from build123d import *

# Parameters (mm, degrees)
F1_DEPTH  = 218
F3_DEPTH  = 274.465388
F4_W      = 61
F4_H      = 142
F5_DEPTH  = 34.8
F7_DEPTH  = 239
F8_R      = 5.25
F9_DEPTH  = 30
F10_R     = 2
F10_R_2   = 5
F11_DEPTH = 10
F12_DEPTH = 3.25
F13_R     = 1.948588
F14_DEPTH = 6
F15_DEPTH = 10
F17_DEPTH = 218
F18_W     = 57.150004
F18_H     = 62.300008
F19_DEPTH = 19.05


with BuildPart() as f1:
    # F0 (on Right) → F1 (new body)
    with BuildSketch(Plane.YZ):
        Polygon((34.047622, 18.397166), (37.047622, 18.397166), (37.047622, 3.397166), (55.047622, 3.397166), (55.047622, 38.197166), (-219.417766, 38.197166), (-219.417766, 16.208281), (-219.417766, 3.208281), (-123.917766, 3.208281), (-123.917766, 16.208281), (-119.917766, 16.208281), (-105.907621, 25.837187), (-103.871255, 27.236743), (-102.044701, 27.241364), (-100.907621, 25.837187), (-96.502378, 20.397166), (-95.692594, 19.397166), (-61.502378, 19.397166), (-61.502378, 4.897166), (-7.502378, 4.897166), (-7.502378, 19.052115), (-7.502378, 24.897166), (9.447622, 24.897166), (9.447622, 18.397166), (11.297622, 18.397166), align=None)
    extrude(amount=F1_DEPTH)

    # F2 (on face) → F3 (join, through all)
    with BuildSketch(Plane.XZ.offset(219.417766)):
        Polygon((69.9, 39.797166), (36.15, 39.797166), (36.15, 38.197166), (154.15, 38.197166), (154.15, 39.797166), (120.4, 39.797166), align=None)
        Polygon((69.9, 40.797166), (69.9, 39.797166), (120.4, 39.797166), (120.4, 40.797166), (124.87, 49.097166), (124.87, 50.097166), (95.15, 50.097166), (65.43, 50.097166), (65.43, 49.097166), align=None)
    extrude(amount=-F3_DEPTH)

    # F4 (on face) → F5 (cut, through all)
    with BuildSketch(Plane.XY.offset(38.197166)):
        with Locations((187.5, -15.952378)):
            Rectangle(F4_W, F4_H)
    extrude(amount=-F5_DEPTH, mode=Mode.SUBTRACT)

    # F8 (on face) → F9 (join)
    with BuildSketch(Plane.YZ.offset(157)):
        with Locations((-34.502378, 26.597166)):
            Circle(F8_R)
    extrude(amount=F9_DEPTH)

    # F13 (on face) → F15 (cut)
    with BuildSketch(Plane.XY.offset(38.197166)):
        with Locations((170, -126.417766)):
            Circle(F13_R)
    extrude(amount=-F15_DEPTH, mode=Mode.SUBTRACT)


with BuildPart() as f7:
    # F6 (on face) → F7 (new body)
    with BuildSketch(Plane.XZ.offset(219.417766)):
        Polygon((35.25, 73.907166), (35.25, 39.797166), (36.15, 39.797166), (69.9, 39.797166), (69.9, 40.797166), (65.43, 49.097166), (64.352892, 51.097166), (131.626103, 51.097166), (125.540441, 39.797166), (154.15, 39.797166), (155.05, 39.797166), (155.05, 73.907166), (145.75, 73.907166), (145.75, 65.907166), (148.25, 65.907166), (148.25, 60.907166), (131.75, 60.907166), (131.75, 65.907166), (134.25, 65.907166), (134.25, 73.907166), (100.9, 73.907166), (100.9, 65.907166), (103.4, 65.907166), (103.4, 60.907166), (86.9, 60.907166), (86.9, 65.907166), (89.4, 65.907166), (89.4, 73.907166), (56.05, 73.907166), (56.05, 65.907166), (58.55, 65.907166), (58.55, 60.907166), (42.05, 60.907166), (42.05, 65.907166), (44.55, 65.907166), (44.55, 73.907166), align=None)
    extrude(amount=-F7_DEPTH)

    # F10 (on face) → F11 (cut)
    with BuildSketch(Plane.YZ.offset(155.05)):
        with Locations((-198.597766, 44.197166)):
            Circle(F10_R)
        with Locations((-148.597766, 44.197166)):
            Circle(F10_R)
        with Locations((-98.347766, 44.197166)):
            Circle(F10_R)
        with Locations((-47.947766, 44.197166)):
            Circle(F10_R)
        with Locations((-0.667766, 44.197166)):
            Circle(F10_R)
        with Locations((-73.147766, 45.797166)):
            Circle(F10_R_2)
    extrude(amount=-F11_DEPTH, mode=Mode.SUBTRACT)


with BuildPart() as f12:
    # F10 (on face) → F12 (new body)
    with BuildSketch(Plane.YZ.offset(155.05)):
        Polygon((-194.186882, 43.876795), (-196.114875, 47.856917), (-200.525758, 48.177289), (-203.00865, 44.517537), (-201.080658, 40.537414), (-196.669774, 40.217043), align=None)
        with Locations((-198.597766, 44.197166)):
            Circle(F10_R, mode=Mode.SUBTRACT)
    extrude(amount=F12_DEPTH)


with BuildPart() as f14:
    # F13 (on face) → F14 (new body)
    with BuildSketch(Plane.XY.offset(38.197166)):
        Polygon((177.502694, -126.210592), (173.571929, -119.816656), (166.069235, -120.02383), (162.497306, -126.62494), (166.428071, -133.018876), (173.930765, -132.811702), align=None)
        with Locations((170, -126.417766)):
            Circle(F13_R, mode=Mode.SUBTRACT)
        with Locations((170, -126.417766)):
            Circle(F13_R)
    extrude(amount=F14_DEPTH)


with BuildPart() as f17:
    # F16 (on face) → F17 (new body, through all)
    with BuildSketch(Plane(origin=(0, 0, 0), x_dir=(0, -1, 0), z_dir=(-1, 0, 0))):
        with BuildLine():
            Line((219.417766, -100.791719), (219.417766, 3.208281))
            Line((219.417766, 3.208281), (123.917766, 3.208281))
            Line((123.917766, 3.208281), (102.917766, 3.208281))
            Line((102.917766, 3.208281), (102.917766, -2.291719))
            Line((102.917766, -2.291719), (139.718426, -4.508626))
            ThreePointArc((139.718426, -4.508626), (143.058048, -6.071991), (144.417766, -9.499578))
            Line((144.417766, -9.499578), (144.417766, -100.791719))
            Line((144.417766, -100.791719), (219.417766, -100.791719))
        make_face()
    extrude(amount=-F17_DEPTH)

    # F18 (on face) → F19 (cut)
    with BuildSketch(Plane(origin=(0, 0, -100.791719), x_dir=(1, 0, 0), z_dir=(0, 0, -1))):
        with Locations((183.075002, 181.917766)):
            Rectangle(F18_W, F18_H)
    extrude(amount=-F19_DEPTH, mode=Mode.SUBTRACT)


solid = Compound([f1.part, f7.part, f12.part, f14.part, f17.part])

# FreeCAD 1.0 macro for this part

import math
import FreeCAD as App
import Part
import Sketcher
from FreeCAD import Vector
Q = App.Units.Quantity

doc = App.newDocument("Part")
body = doc.addObject("PartDesign::Body", "Body")

sketch1 = body.newObject("Sketcher::SketchObject", "Sketch")
sketch1.AttachmentSupport = (doc.getObject("YZ_Plane"), [""])
sketch1.MapMode = "FlatFace"
sketch1.addGeometry([
    Part.LineSegment(Vector(37, 18.4, 0), Vector(37, 3.4, 0)),
    Part.LineSegment(Vector(37, 3.4, 0), Vector(55, 3.4, 0)),
    Part.LineSegment(Vector(55, 3.4, 0), Vector(55, 38.2, 0)),
    Part.LineSegment(Vector(55, 38.2, 0), Vector(-219.4, 38.2, 0)),
    Part.LineSegment(Vector(-219.4, 38.2, 0), Vector(-219.4, 3.2, 0)),
    Part.LineSegment(Vector(-219.4, 3.2, 0), Vector(-123.9, 3.2, 0)),
    Part.LineSegment(Vector(-123.9, 3.2, 0), Vector(-123.9, 16.2, 0)),
    Part.LineSegment(Vector(-123.9, 16.2, 0), Vector(-119.9, 16.2, 0)),
    Part.LineSegment(Vector(-119.9, 16.2, 0), Vector(-105.9, 25.8, 0)),
    Part.LineSegment(Vector(-105.9, 25.8, 0), Vector(-103.9, 27.2, 0)),
    Part.LineSegment(Vector(-103.9, 27.2, 0), Vector(-102, 27.2, 0)),
    Part.LineSegment(Vector(-102, 27.2, 0), Vector(-100.9, 25.8, 0)),
    Part.LineSegment(Vector(-100.9, 25.8, 0), Vector(-96.5, 20.4, 0)),
    Part.LineSegment(Vector(-96.5, 20.4, 0), Vector(-95.7, 19.4, 0)),
    Part.LineSegment(Vector(-95.7, 19.4, 0), Vector(-61.5, 19.4, 0)),
    Part.LineSegment(Vector(-61.5, 19.4, 0), Vector(-61.5, 4.9, 0)),
    Part.LineSegment(Vector(-61.5, 4.9, 0), Vector(-7.5, 4.9, 0)),
    Part.LineSegment(Vector(-7.5, 4.9, 0), Vector(-7.5, 24.9, 0)),
    Part.LineSegment(Vector(-7.5, 24.9, 0), Vector(9.4, 24.9, 0)),
    Part.LineSegment(Vector(9.4, 24.9, 0), Vector(9.4, 18.4, 0)),
    Part.LineSegment(Vector(9.4, 18.4, 0), Vector(37, 18.4, 0)),
], False)
sketch1.addConstraint([
    Sketcher.Constraint("Coincident", 0, 2, 1, 1),
    Sketcher.Constraint("Coincident", 1, 2, 2, 1),
    Sketcher.Constraint("Coincident", 2, 2, 3, 1),
    Sketcher.Constraint("Coincident", 3, 2, 4, 1),
    Sketcher.Constraint("Coincident", 4, 2, 5, 1),
    Sketcher.Constraint("Coincident", 5, 2, 6, 1),
    Sketcher.Constraint("Coincident", 6, 2, 7, 1),
    Sketcher.Constraint("Coincident", 7, 2, 8, 1),
    Sketcher.Constraint("Coincident", 8, 2, 9, 1),
    Sketcher.Constraint("Coincident", 9, 2, 10, 1),
    Sketcher.Constraint("Coincident", 10, 2, 11, 1),
    Sketcher.Constraint("Coincident", 11, 2, 12, 1),
    Sketcher.Constraint("Coincident", 12, 2, 13, 1),
    Sketcher.Constraint("Coincident", 13, 2, 14, 1),
    Sketcher.Constraint("Coincident", 14, 2, 15, 1),
    Sketcher.Constraint("Coincident", 15, 2, 16, 1),
    Sketcher.Constraint("Coincident", 16, 2, 17, 1),
    Sketcher.Constraint("Coincident", 17, 2, 18, 1),
    Sketcher.Constraint("Coincident", 18, 2, 19, 1),
    Sketcher.Constraint("Coincident", 19, 2, 20, 1),
    Sketcher.Constraint("Coincident", 20, 2, 0, 1),
    Sketcher.Constraint("Vertical", 0),
    Sketcher.Constraint("Horizontal", 1),
    Sketcher.Constraint("Vertical", 2),
    Sketcher.Constraint("Horizontal", 3),
    Sketcher.Constraint("Vertical", 4),
    Sketcher.Constraint("Horizontal", 5),
    Sketcher.Constraint("Vertical", 6),
    Sketcher.Constraint("Horizontal", 7),
    Sketcher.Constraint("Horizontal", 14),
    Sketcher.Constraint("Vertical", 15),
    Sketcher.Constraint("Horizontal", 16),
    Sketcher.Constraint("Vertical", 17),
    Sketcher.Constraint("Horizontal", 18),
    Sketcher.Constraint("Vertical", 19),
    Sketcher.Constraint("Horizontal", 20),
    Sketcher.Constraint("Parallel", 8, 9),
    Sketcher.Constraint("Parallel", 11, 12),
    Sketcher.Constraint("Parallel", 12, 13),
    Sketcher.Constraint("Horizontal", 8, 2, 11, 2),
    Sketcher.Constraint("DistanceX", 1, 1, 1, 2, 18.0),
    Sketcher.Constraint("DistanceX", 7, 1, 7, 2, 4.0),
    Sketcher.Constraint("DistanceX", 16, 1, 16, 2, 54.0),
    Sketcher.Constraint("DistanceY", 0, 2, 0, 1, 15.0),
    Sketcher.Constraint("DistanceY", 6, 1, 6, 2, 13.0),
    Sketcher.Constraint("DistanceY", 17, 1, 17, 2, 20.0),
    Sketcher.Constraint("Angle", 11, Q("-51.000003 deg")),
    Sketcher.Constraint("Distance", 8, 17.0),
    Sketcher.Constraint("Distance", 12, 7.0),
    Sketcher.Constraint("DistanceX", 5, 1, 5, 2, 95.5),
    Sketcher.Constraint("DistanceX", 20, 1, 20, 2, 27.6),
    Sketcher.Constraint("DistanceY", 2, 1, 2, 2, 34.8),
    Sketcher.Constraint("DistanceY", 15, 2, 15, 1, 14.5),
    Sketcher.Constraint("DistanceY", 19, 2, 19, 1, 6.5),
    Sketcher.Constraint("Angle", 8, Q("34.5 deg")),
    Sketcher.Constraint("DistanceX", 8, 2, 11, 2, 5.0),
    Sketcher.Constraint("DistanceY", 13, 2, 12, 2, 1.0),
    Sketcher.Constraint("DistanceX", 12, 2, 14, 2, 35.0),
    Sketcher.Constraint("DistanceX", 18, 1, 18, 2, 16.95),
    Sketcher.Constraint("DistanceX", 10, 2, -1, 1, 102.044701),
    Sketcher.Constraint("DistanceY", 12, 2, 10, 2, 6.844198),
    Sketcher.Constraint("Distance", 9, 2.47094),
    Sketcher.Constraint("DistanceY", -1, 1, 4, 2, 3.208281),
])
pad1 = body.newObject("PartDesign::Pad", "Pad")
pad1.Profile = sketch1
pad1.Length = 218

sketch2 = body.newObject("Sketcher::SketchObject", "Sketch001")
sketch2.AttachmentSupport = (doc.getObject("XZ_Plane"), [""])
sketch2.MapMode = "FlatFace"
sketch2.AttachmentOffset = App.Placement(Vector(0, 0, 219.417766), App.Rotation())
sketch2.addGeometry([
    Part.LineSegment(Vector(36.1, 39.8, 0), Vector(36.1, 38.2, 0)),
    Part.LineSegment(Vector(36.1, 38.2, 0), Vector(154.2, 38.2, 0)),
    Part.LineSegment(Vector(154.2, 38.2, 0), Vector(154.2, 39.8, 0)),
    Part.LineSegment(Vector(154.2, 39.8, 0), Vector(120.4, 39.8, 0)),
    Part.LineSegment(Vector(120.4, 39.8, 0), Vector(120.4, 40.8, 0)),
    Part.LineSegment(Vector(120.4, 40.8, 0), Vector(124.9, 49.1, 0)),
    Part.LineSegment(Vector(124.9, 49.1, 0), Vector(124.9, 50.1, 0)),
    Part.LineSegment(Vector(124.9, 50.1, 0), Vector(65.4, 50.1, 0)),
    Part.LineSegment(Vector(65.4, 50.1, 0), Vector(65.4, 49.1, 0)),
    Part.LineSegment(Vector(65.4, 49.1, 0), Vector(69.9, 40.8, 0)),
    Part.LineSegment(Vector(69.9, 40.8, 0), Vector(69.9, 39.8, 0)),
    Part.LineSegment(Vector(69.9, 39.8, 0), Vector(36.1, 39.8, 0)),
], False)
sketch2.addConstraint([
    Sketcher.Constraint("Coincident", 0, 2, 1, 1),
    Sketcher.Constraint("Coincident", 1, 2, 2, 1),
    Sketcher.Constraint("Coincident", 2, 2, 3, 1),
    Sketcher.Constraint("Coincident", 3, 2, 4, 1),
    Sketcher.Constraint("Coincident", 4, 2, 5, 1),
    Sketcher.Constraint("Coincident", 5, 2, 6, 1),
    Sketcher.Constraint("Coincident", 6, 2, 7, 1),
    Sketcher.Constraint("Coincident", 7, 2, 8, 1),
    Sketcher.Constraint("Coincident", 8, 2, 9, 1),
    Sketcher.Constraint("Coincident", 9, 2, 10, 1),
    Sketcher.Constraint("Coincident", 10, 2, 11, 1),
    Sketcher.Constraint("Coincident", 11, 2, 0, 1),
    Sketcher.Constraint("Vertical", 0),
    Sketcher.Constraint("Horizontal", 1),
    Sketcher.Constraint("Vertical", 2),
    Sketcher.Constraint("Horizontal", 3),
    Sketcher.Constraint("Vertical", 4),
    Sketcher.Constraint("Vertical", 6),
    Sketcher.Constraint("Horizontal", 7),
    Sketcher.Constraint("Vertical", 8),
    Sketcher.Constraint("Vertical", 10),
    Sketcher.Constraint("Horizontal", 11),
    Sketcher.Constraint("Horizontal", 5, 2, 8, 2),
    Sketcher.Constraint("Horizontal", 4, 2, 9, 2),
    Sketcher.Constraint("Horizontal", 3, 2, 10, 2),
    Sketcher.Constraint("Equal", 3, 11),
    Sketcher.Constraint("Equal", 4, 6),
    Sketcher.Constraint("Equal", 5, 9),
    Sketcher.Constraint("DistanceX", 1, 1, 1, 2, 118.0),
    Sketcher.Constraint("DistanceY", 4, 1, 4, 2, 1.0),
    Sketcher.Constraint("DistanceY", 0, 2, 0, 1, 1.6),
    Sketcher.Constraint("DistanceX", 3, 2, 3, 1, 33.75),
    Sketcher.Constraint("DistanceX", 7, 2, 7, 1, 59.44),
    Sketcher.Constraint("DistanceX", -1, 1, 3, 2, 120.4),
    Sketcher.Constraint("DistanceY", 4, 2, 5, 2, 8.3),
    Sketcher.Constraint("DistanceY", -1, 1, 0, 2, 38.197166),
])
pad2 = body.newObject("PartDesign::Pad", "Pad001")
pad2.Profile = sketch2
pad2.Length = 274.465388
pad2.Reversed = True

sketch3 = body.newObject("Sketcher::SketchObject", "Sketch002")
sketch3.AttachmentSupport = (doc.getObject("XY_Plane"), [""])
sketch3.MapMode = "FlatFace"
sketch3.AttachmentOffset = App.Placement(Vector(0, 0, 38.197166), App.Rotation())
sketch3.addGeometry([
    Part.LineSegment(Vector(157, 55, 0), Vector(157, -87, 0)),
    Part.LineSegment(Vector(157, -87, 0), Vector(218, -87, 0)),
    Part.LineSegment(Vector(218, -87, 0), Vector(218, 55, 0)),
    Part.LineSegment(Vector(218, 55, 0), Vector(157, 55, 0)),
], False)
sketch3.addConstraint([
    Sketcher.Constraint("Coincident", 0, 2, 1, 1),
    Sketcher.Constraint("Coincident", 1, 2, 2, 1),
    Sketcher.Constraint("Coincident", 2, 2, 3, 1),
    Sketcher.Constraint("Coincident", 3, 2, 0, 1),
    Sketcher.Constraint("Vertical", 0),
    Sketcher.Constraint("Horizontal", 1),
    Sketcher.Constraint("Vertical", 2),
    Sketcher.Constraint("Horizontal", 3),
    Sketcher.Constraint("DistanceX", 1, 1, 1, 2, 61.0),
    Sketcher.Constraint("DistanceY", 0, 2, 0, 1, 142.0),
    Sketcher.Constraint("DistanceX", -1, 1, 0, 2, 157.0),
    Sketcher.Constraint("DistanceY", -1, 1, 2, 2, 55.047622),
])
pocket1 = body.newObject("PartDesign::Pocket", "Pocket")
pocket1.Profile = sketch3
pocket1.Type = "ThroughAll"

sketch4 = body.newObject("Sketcher::SketchObject", "Sketch003")
sketch4.AttachmentSupport = (doc.getObject("YZ_Plane"), [""])
sketch4.MapMode = "FlatFace"
sketch4.AttachmentOffset = App.Placement(Vector(0, 0, 157), App.Rotation())
sketch4.addGeometry(Part.Circle(Vector(-35, 27, 0), Vector(0, 0, 1), 5), False)
sketch4.addConstraint([
    Sketcher.Constraint("Diameter", 0, 10.5),
    Sketcher.Constraint("DistanceX", 0, 3, -1, 1, 34.502378),
    Sketcher.Constraint("DistanceY", -1, 1, 0, 3, 26.597166),
])
pad3 = body.newObject("PartDesign::Pad", "Pad002")
pad3.Profile = sketch4
pad3.Length = 30

sketch5 = body.newObject("Sketcher::SketchObject", "Sketch004")
sketch5.AttachmentSupport = (doc.getObject("XY_Plane"), [""])
sketch5.MapMode = "FlatFace"
sketch5.AttachmentOffset = App.Placement(Vector(0, 0, 38.197166), App.Rotation())
sketch5.addGeometry(Part.Circle(Vector(170, -126.4, 0), Vector(0, 0, 1), 1.9), False)
sketch5.addConstraint([
    Sketcher.Constraint("DistanceX", -1, 1, 0, 3, 170.0),
    Sketcher.Constraint("Diameter", 0, 3.897176),
    Sketcher.Constraint("DistanceY", 0, 3, -1, 1, 126.417766),
])
pocket2 = body.newObject("PartDesign::Pocket", "Pocket001")
pocket2.Profile = sketch5
pocket2.Length = 10
body2 = doc.addObject("PartDesign::Body", "Body001")

sketch6 = body2.newObject("Sketcher::SketchObject", "Sketch005")
sketch6.AttachmentSupport = (doc.getObject("XZ_Plane001"), [""])
sketch6.MapMode = "FlatFace"
sketch6.AttachmentOffset = App.Placement(Vector(0, 0, 219.417766), App.Rotation())
sketch6.addGeometry([
    Part.LineSegment(Vector(35.2, 73.9, 0), Vector(35.2, 39.8, 0)),
    Part.LineSegment(Vector(35.2, 39.8, 0), Vector(69.9, 39.8, 0)),
    Part.LineSegment(Vector(69.9, 39.8, 0), Vector(69.9, 40.8, 0)),
    Part.LineSegment(Vector(69.9, 40.8, 0), Vector(65.4, 49.1, 0)),
    Part.LineSegment(Vector(65.4, 49.1, 0), Vector(64.4, 51.1, 0)),
    Part.LineSegment(Vector(64.4, 51.1, 0), Vector(131.6, 51.1, 0)),
    Part.LineSegment(Vector(131.6, 51.1, 0), Vector(125.5, 39.8, 0)),
    Part.LineSegment(Vector(125.5, 39.8, 0), Vector(155.1, 39.8, 0)),
    Part.LineSegment(Vector(155.1, 39.8, 0), Vector(155.1, 73.9, 0)),
    Part.LineSegment(Vector(155.1, 73.9, 0), Vector(145.8, 73.9, 0)),
    Part.LineSegment(Vector(145.8, 73.9, 0), Vector(145.8, 65.9, 0)),
    Part.LineSegment(Vector(145.8, 65.9, 0), Vector(148.2, 65.9, 0)),
    Part.LineSegment(Vector(148.2, 65.9, 0), Vector(148.2, 60.9, 0)),
    Part.LineSegment(Vector(148.2, 60.9, 0), Vector(131.8, 60.9, 0)),
    Part.LineSegment(Vector(131.8, 60.9, 0), Vector(131.8, 65.9, 0)),
    Part.LineSegment(Vector(131.8, 65.9, 0), Vector(134.2, 65.9, 0)),
    Part.LineSegment(Vector(134.2, 65.9, 0), Vector(134.2, 73.9, 0)),
    Part.LineSegment(Vector(134.2, 73.9, 0), Vector(100.9, 73.9, 0)),
    Part.LineSegment(Vector(100.9, 73.9, 0), Vector(100.9, 65.9, 0)),
    Part.LineSegment(Vector(100.9, 65.9, 0), Vector(103.4, 65.9, 0)),
    Part.LineSegment(Vector(103.4, 65.9, 0), Vector(103.4, 60.9, 0)),
    Part.LineSegment(Vector(103.4, 60.9, 0), Vector(86.9, 60.9, 0)),
    Part.LineSegment(Vector(86.9, 60.9, 0), Vector(86.9, 65.9, 0)),
    Part.LineSegment(Vector(86.9, 65.9, 0), Vector(89.4, 65.9, 0)),
    Part.LineSegment(Vector(89.4, 65.9, 0), Vector(89.4, 73.9, 0)),
    Part.LineSegment(Vector(89.4, 73.9, 0), Vector(56, 73.9, 0)),
    Part.LineSegment(Vector(56, 73.9, 0), Vector(56, 65.9, 0)),
    Part.LineSegment(Vector(56, 65.9, 0), Vector(58.5, 65.9, 0)),
    Part.LineSegment(Vector(58.5, 65.9, 0), Vector(58.5, 60.9, 0)),
    Part.LineSegment(Vector(58.5, 60.9, 0), Vector(42, 60.9, 0)),
    Part.LineSegment(Vector(42, 60.9, 0), Vector(42, 65.9, 0)),
    Part.LineSegment(Vector(42, 65.9, 0), Vector(44.5, 65.9, 0)),
    Part.LineSegment(Vector(44.5, 65.9, 0), Vector(44.5, 73.9, 0)),
    Part.LineSegment(Vector(44.5, 73.9, 0), Vector(35.2, 73.9, 0)),
], False)
sketch6.addConstraint([
    Sketcher.Constraint("Coincident", 0, 2, 1, 1),
    Sketcher.Constraint("Coincident", 1, 2, 2, 1),
    Sketcher.Constraint("Coincident", 2, 2, 3, 1),
    Sketcher.Constraint("Coincident", 3, 2, 4, 1),
    Sketcher.Constraint("Coincident", 4, 2, 5, 1),
    Sketcher.Constraint("Coincident", 5, 2, 6, 1),
    Sketcher.Constraint("Coincident", 6, 2, 7, 1),
    Sketcher.Constraint("Coincident", 7, 2, 8, 1),
    Sketcher.Constraint("Coincident", 8, 2, 9, 1),
    Sketcher.Constraint("Coincident", 9, 2, 10, 1),
    Sketcher.Constraint("Coincident", 10, 2, 11, 1),
    Sketcher.Constraint("Coincident", 11, 2, 12, 1),
    Sketcher.Constraint("Coincident", 12, 2, 13, 1),
    Sketcher.Constraint("Coincident", 13, 2, 14, 1),
    Sketcher.Constraint("Coincident", 14, 2, 15, 1),
    Sketcher.Constraint("Coincident", 15, 2, 16, 1),
    Sketcher.Constraint("Coincident", 16, 2, 17, 1),
    Sketcher.Constraint("Coincident", 17, 2, 18, 1),
    Sketcher.Constraint("Coincident", 18, 2, 19, 1),
    Sketcher.Constraint("Coincident", 19, 2, 20, 1),
    Sketcher.Constraint("Coincident", 20, 2, 21, 1),
    Sketcher.Constraint("Coincident", 21, 2, 22, 1),
    Sketcher.Constraint("Coincident", 22, 2, 23, 1),
    Sketcher.Constraint("Coincident", 23, 2, 24, 1),
    Sketcher.Constraint("Coincident", 24, 2, 25, 1),
    Sketcher.Constraint("Coincident", 25, 2, 26, 1),
    Sketcher.Constraint("Coincident", 26, 2, 27, 1),
    Sketcher.Constraint("Coincident", 27, 2, 28, 1),
    Sketcher.Constraint("Coincident", 28, 2, 29, 1),
    Sketcher.Constraint("Coincident", 29, 2, 30, 1),
    Sketcher.Constraint("Coincident", 30, 2, 31, 1),
    Sketcher.Constraint("Coincident", 31, 2, 32, 1),
    Sketcher.Constraint("Coincident", 32, 2, 33, 1),
    Sketcher.Constraint("Coincident", 33, 2, 0, 1),
    Sketcher.Constraint("Vertical", 0),
    Sketcher.Constraint("Horizontal", 1),
    Sketcher.Constraint("Vertical", 2),
    Sketcher.Constraint("Horizontal", 5),
    Sketcher.Constraint("Horizontal", 7),
    Sketcher.Constraint("Vertical", 8),
    Sketcher.Constraint("Horizontal", 9),
    Sketcher.Constraint("Vertical", 10),
    Sketcher.Constraint("Horizontal", 11),
    Sketcher.Constraint("Vertical", 12),
    Sketcher.Constraint("Horizontal", 13),
    Sketcher.Constraint("Vertical", 14),
    Sketcher.Constraint("Horizontal", 15),
    Sketcher.Constraint("Vertical", 16),
    Sketcher.Constraint("Horizontal", 17),
    Sketcher.Constraint("Vertical", 18),
    Sketcher.Constraint("Horizontal", 19),
    Sketcher.Constraint("Vertical", 20),
    Sketcher.Constraint("Horizontal", 21),
    Sketcher.Constraint("Vertical", 22),
    Sketcher.Constraint("Horizontal", 23),
    Sketcher.Constraint("Vertical", 24),
    Sketcher.Constraint("Horizontal", 25),
    Sketcher.Constraint("Vertical", 26),
    Sketcher.Constraint("Horizontal", 27),
    Sketcher.Constraint("Vertical", 28),
    Sketcher.Constraint("Horizontal", 29),
    Sketcher.Constraint("Vertical", 30),
    Sketcher.Constraint("Horizontal", 31),
    Sketcher.Constraint("Vertical", 32),
    Sketcher.Constraint("Horizontal", 33),
    Sketcher.Constraint("Parallel", 3, 4),
    Sketcher.Constraint("Horizontal", 1, 2, 6, 2),
    Sketcher.Constraint("Horizontal", 11, 2, 14, 2),
    Sketcher.Constraint("Horizontal", 9, 2, 16, 2),
    Sketcher.Constraint("Horizontal", 15, 2, 18, 2),
    Sketcher.Constraint("Horizontal", 13, 2, 20, 2),
    Sketcher.Constraint("Horizontal", 19, 2, 22, 2),
    Sketcher.Constraint("Horizontal", 17, 2, 24, 2),
    Sketcher.Constraint("Horizontal", 23, 2, 26, 2),
    Sketcher.Constraint("Horizontal", 21, 2, 28, 2),
    Sketcher.Constraint("Horizontal", 27, 2, 30, 2),
    Sketcher.Constraint("Horizontal", 25, 2, 32, 2),
    Sketcher.Constraint("Equal", 11, 15),
    Sketcher.Constraint("Equal", 15, 19),
    Sketcher.Constraint("Equal", 13, 21),
    Sketcher.Constraint("Equal", 19, 23),
    Sketcher.Constraint("Equal", 17, 25),
    Sketcher.Constraint("Equal", 23, 27),
    Sketcher.Constraint("Equal", 21, 29),
    Sketcher.Constraint("Equal", 27, 31),
    Sketcher.Constraint("Equal", 9, 33),
    Sketcher.Constraint("DistanceY", 2, 1, 2, 2, 1.0),
    Sketcher.Constraint("DistanceY", 10, 2, 10, 1, 8.0),
    Sketcher.Constraint("DistanceY", 12, 2, 12, 1, 5.0),
    Sketcher.Constraint("DistanceX", 9, 2, 9, 1, 9.3),
    Sketcher.Constraint("DistanceX", 11, 1, 11, 2, 2.5),
    Sketcher.Constraint("DistanceX", 13, 2, 13, 1, 16.5),
    Sketcher.Constraint("DistanceY", 3, 2, 4, 2, 2.0),
    Sketcher.Constraint("DistanceX", 1, 1, 1, 2, 34.65),
    Sketcher.Constraint("DistanceX", 17, 2, 17, 1, 33.35),
    Sketcher.Constraint("DistanceY", 0, 2, 0, 1, 34.11),
    Sketcher.Constraint("DistanceX", -1, 1, 1, 2, 69.9),
    Sketcher.Constraint("DistanceY", 2, 2, 3, 2, 8.3),
    Sketcher.Constraint("DistanceX", -1, 1, 3, 2, 65.43),
    Sketcher.Constraint("DistanceX", 5, 1, 5, 2, 67.273211),
    Sketcher.Constraint("DistanceX", 7, 1, 7, 2, 29.509559),
    Sketcher.Constraint("DistanceY", -1, 1, 0, 2, 39.797166),
])
pad4 = body2.newObject("PartDesign::Pad", "Pad003")
pad4.Profile = sketch6
pad4.Length = 239
pad4.Reversed = True

sketch7 = body2.newObject("Sketcher::SketchObject", "Sketch006")
sketch7.AttachmentSupport = (doc.getObject("YZ_Plane001"), [""])
sketch7.MapMode = "FlatFace"
sketch7.AttachmentOffset = App.Placement(Vector(0, 0, 155.05), App.Rotation())
sketch7.addGeometry([
    Part.Circle(Vector(-198.6, 44.2, 0), Vector(0, 0, 1), 2),
    Part.Circle(Vector(-148.6, 44.2, 0), Vector(0, 0, 1), 2),
    Part.Circle(Vector(-98.3, 44.2, 0), Vector(0, 0, 1), 2),
    Part.Circle(Vector(-47.9, 44.2, 0), Vector(0, 0, 1), 2),
    Part.Circle(Vector(-0.7, 44.2, 0), Vector(0, 0, 1), 2),
    Part.Circle(Vector(-73.1, 45.8, 0), Vector(0, 0, 1), 5),
], False)
sketch7.addConstraint([
    Sketcher.Constraint("Equal", 0, 1),
    Sketcher.Constraint("Equal", 1, 2),
    Sketcher.Constraint("Equal", 2, 3),
    Sketcher.Constraint("Equal", 3, 4),
    Sketcher.Constraint("Horizontal", 0, 3, 1, 3),
    Sketcher.Constraint("Horizontal", 1, 3, 2, 3),
    Sketcher.Constraint("Horizontal", 2, 3, 3, 3),
    Sketcher.Constraint("Horizontal", 3, 3, 4, 3),
    Sketcher.Constraint("Diameter", 0, 4.0),
    Sketcher.Constraint("Diameter", 5, 10.0),
    Sketcher.Constraint("DistanceX", 0, 3, 1, 3, 50.0),
    Sketcher.Constraint("DistanceX", 2, 3, 3, 3, 50.4),
    Sketcher.Constraint("DistanceX", 2, 3, 5, 3, 25.2),
    Sketcher.Constraint("DistanceY", 2, 3, 5, 3, 1.6),
    Sketcher.Constraint("DistanceX", 1, 3, 2, 3, 50.25),
    Sketcher.Constraint("DistanceX", 3, 3, 4, 3, 47.28),
    Sketcher.Constraint("DistanceX", 0, 3, -1, 1, 198.597766),
    Sketcher.Constraint("DistanceY", -1, 1, 0, 3, 44.197166),
])
pocket3 = body2.newObject("PartDesign::Pocket", "Pocket002")
pocket3.Profile = sketch7
pocket3.Length = 10
body3 = doc.addObject("PartDesign::Body", "Body002")

sketch8 = body3.newObject("Sketcher::SketchObject", "Sketch007")
sketch8.AttachmentSupport = (doc.getObject("YZ_Plane002"), [""])
sketch8.MapMode = "FlatFace"
sketch8.AttachmentOffset = App.Placement(Vector(0, 0, 155.05), App.Rotation())
sketch8.addGeometry([
    Part.LineSegment(Vector(-194.2, 43.9, 0), Vector(-196.1, 47.9, 0)),
    Part.LineSegment(Vector(-196.1, 47.9, 0), Vector(-200.5, 48.2, 0)),
    Part.LineSegment(Vector(-200.5, 48.2, 0), Vector(-203, 44.5, 0)),
    Part.LineSegment(Vector(-203, 44.5, 0), Vector(-201.1, 40.5, 0)),
    Part.LineSegment(Vector(-201.1, 40.5, 0), Vector(-196.7, 40.2, 0)),
    Part.LineSegment(Vector(-196.7, 40.2, 0), Vector(-194.2, 43.9, 0)),
    Part.Circle(Vector(-198.6, 44.2, 0), Vector(0, 0, 1), 2),
], False)
sketch8.addConstraint([
    Sketcher.Constraint("Coincident", 0, 2, 1, 1),
    Sketcher.Constraint("Coincident", 1, 2, 2, 1),
    Sketcher.Constraint("Coincident", 2, 2, 3, 1),
    Sketcher.Constraint("Coincident", 3, 2, 4, 1),
    Sketcher.Constraint("Coincident", 4, 2, 5, 1),
    Sketcher.Constraint("Coincident", 5, 2, 0, 1),
    Sketcher.Constraint("Parallel", 0, 3),
    Sketcher.Constraint("Parallel", 1, 4),
    Sketcher.Constraint("Parallel", 2, 5),
    Sketcher.Constraint("Equal", 0, 1),
    Sketcher.Constraint("Equal", 1, 2),
    Sketcher.Constraint("Equal", 2, 3),
    Sketcher.Constraint("Diameter", 6, 4.0),
    Sketcher.Constraint("DistanceX", 3, 2, 1, 2, 0.5549),
    Sketcher.Constraint("DistanceX", 1, 2, -1, 1, 200.525758),
    Sketcher.Constraint("DistanceY", -1, 1, 1, 2, 48.177289),
    Sketcher.Constraint("DistanceX", 2, 2, -1, 1, 203.00865),
    Sketcher.Constraint("DistanceX", 5, 2, -1, 1, 194.186882),
    Sketcher.Constraint("DistanceX", 6, 3, 0, 2, 2.482891),
    Sketcher.Constraint("DistanceY", 6, 3, 0, 2, 3.659751),
    Sketcher.Constraint("DistanceY", 0, 2, 1, 2, 0.320372),
])
pad5 = body3.newObject("PartDesign::Pad", "Pad004")
pad5.Profile = sketch8
pad5.Length = 3.25
body4 = doc.addObject("PartDesign::Body", "Body003")

sketch9 = body4.newObject("Sketcher::SketchObject", "Sketch008")
sketch9.AttachmentSupport = (doc.getObject("XY_Plane003"), [""])
sketch9.MapMode = "FlatFace"
sketch9.AttachmentOffset = App.Placement(Vector(0, 0, 38.197166), App.Rotation())
sketch9.addGeometry([
    Part.LineSegment(Vector(178, -126, 0), Vector(174, -120, 0)),
    Part.LineSegment(Vector(174, -120, 0), Vector(166, -120, 0)),
    Part.LineSegment(Vector(166, -120, 0), Vector(162, -127, 0)),
    Part.LineSegment(Vector(162, -127, 0), Vector(166, -133, 0)),
    Part.LineSegment(Vector(166, -133, 0), Vector(174, -133, 0)),
    Part.LineSegment(Vector(174, -133, 0), Vector(178, -126, 0)),
], False)
sketch9.addConstraint([
    Sketcher.Constraint("Coincident", 0, 2, 1, 1),
    Sketcher.Constraint("Coincident", 1, 2, 2, 1),
    Sketcher.Constraint("Coincident", 2, 2, 3, 1),
    Sketcher.Constraint("Coincident", 3, 2, 4, 1),
    Sketcher.Constraint("Coincident", 4, 2, 5, 1),
    Sketcher.Constraint("Coincident", 5, 2, 0, 1),
    Sketcher.Constraint("Parallel", 0, 3),
    Sketcher.Constraint("Parallel", 1, 4),
    Sketcher.Constraint("Parallel", 2, 5),
    Sketcher.Constraint("Equal", 0, 1),
    Sketcher.Constraint("Equal", 1, 2),
    Sketcher.Constraint("Equal", 2, 3),
    Sketcher.Constraint("DistanceY", 4, 2, -1, 1, 132.811702),
    Sketcher.Constraint("DistanceX", -1, 1, 0, 2, 173.571929),
    Sketcher.Constraint("DistanceY", 1, 2, -1, 1, 120.02383),
    Sketcher.Constraint("DistanceY", 2, 2, -1, 1, 126.62494),
    Sketcher.Constraint("DistanceX", -1, 1, 3, 2, 166.428071),
    Sketcher.Constraint("DistanceX", 2, 2, 1, 2, 3.571929),
])
pad6 = body4.newObject("PartDesign::Pad", "Pad005")
pad6.Profile = sketch9
pad6.Length = 6
body5 = doc.addObject("PartDesign::Body", "Body004")

sketch10 = body5.newObject("Sketcher::SketchObject", "Sketch009")
sketch10.AttachmentSupport = (doc.getObject("YZ_Plane004"), [""])
sketch10.MapMode = "FlatFace"
sketch10.addGeometry([
    Part.LineSegment(Vector(-219.4, -100.8, 0), Vector(-219.4, 3.2, 0)),
    Part.LineSegment(Vector(-219.4, 3.2, 0), Vector(-102.9, 3.2, 0)),
    Part.LineSegment(Vector(-102.9, 3.2, 0), Vector(-102.9, -2.3, 0)),
    Part.LineSegment(Vector(-102.9, -2.3, 0), Vector(-139.7, -4.5, 0)),
    Part.ArcOfCircle(Part.Circle(Vector(-139.4, -9.5, 0), Vector(0, 0, 1), 5), math.radians(93), math.radians(180)),
    Part.LineSegment(Vector(-144.4, -9.5, 0), Vector(-144.4, -100.8, 0)),
    Part.LineSegment(Vector(-144.4, -100.8, 0), Vector(-219.4, -100.8, 0)),
], False)
sketch10.addConstraint([
    Sketcher.Constraint("Coincident", 0, 2, 1, 1),
    Sketcher.Constraint("Coincident", 1, 2, 2, 1),
    Sketcher.Constraint("Coincident", 2, 2, 3, 1),
    Sketcher.Constraint("Tangent", 3, 2, 4, 1),
    Sketcher.Constraint("Tangent", 4, 2, 5, 1),
    Sketcher.Constraint("Coincident", 5, 2, 6, 1),
    Sketcher.Constraint("Coincident", 6, 2, 0, 1),
    Sketcher.Constraint("Vertical", 0),
    Sketcher.Constraint("Horizontal", 1),
    Sketcher.Constraint("Vertical", 2),
    Sketcher.Constraint("Vertical", 5),
    Sketcher.Constraint("Horizontal", 6),
    Sketcher.Constraint("Radius", 4, 4.999998),
    Sketcher.Constraint("DistanceX", 6, 2, 6, 1, 75.0),
    Sketcher.Constraint("DistanceY", 0, 1, 0, 2, 104.0),
    Sketcher.Constraint("DistanceX", 1, 1, 1, 2, 116.5),
    Sketcher.Constraint("DistanceY", 2, 2, 2, 1, 5.5),
    Sketcher.Constraint("DistanceY", 5, 2, 5, 1, 91.292141),
    Sketcher.Constraint("DistanceY", -1, 1, 0, 2, 3.208281),
    Sketcher.Constraint("DistanceX", 4, 3, -1, 1, 139.417768),
])
pad7 = body5.newObject("PartDesign::Pad", "Pad006")
pad7.Profile = sketch10
pad7.Length = 218

sketch11 = body5.newObject("Sketcher::SketchObject", "Sketch010")
sketch11.AttachmentSupport = (doc.getObject("XY_Plane004"), [""])
sketch11.MapMode = "FlatFace"
sketch11.AttachmentOffset = App.Placement(Vector(0, 0, -100.791719), App.Rotation())
sketch11.addGeometry([
    Part.LineSegment(Vector(154, -213, 0), Vector(154, -151, 0)),
    Part.LineSegment(Vector(154, -151, 0), Vector(212, -151, 0)),
    Part.LineSegment(Vector(212, -151, 0), Vector(212, -213, 0)),
    Part.LineSegment(Vector(212, -213, 0), Vector(154, -213, 0)),
], False)
sketch11.addConstraint([
    Sketcher.Constraint("Coincident", 0, 2, 1, 1),
    Sketcher.Constraint("Coincident", 1, 2, 2, 1),
    Sketcher.Constraint("Coincident", 2, 2, 3, 1),
    Sketcher.Constraint("Coincident", 3, 2, 0, 1),
    Sketcher.Constraint("Vertical", 0),
    Sketcher.Constraint("Horizontal", 1),
    Sketcher.Constraint("Vertical", 2),
    Sketcher.Constraint("Horizontal", 3),
    Sketcher.Constraint("DistanceX", -1, 1, 0, 2, 154.5),
    Sketcher.Constraint("DistanceX", 1, 1, 1, 2, 57.150004),
    Sketcher.Constraint("DistanceY", 0, 1, 0, 2, 62.300008),
    Sketcher.Constraint("DistanceY", 0, 2, -1, 1, 150.767762),
])
pocket4 = body5.newObject("PartDesign::Pocket", "Pocket003")
pocket4.Profile = sketch11
pocket4.Length = 19.05
pocket4.Reversed = True

doc.recompute()
